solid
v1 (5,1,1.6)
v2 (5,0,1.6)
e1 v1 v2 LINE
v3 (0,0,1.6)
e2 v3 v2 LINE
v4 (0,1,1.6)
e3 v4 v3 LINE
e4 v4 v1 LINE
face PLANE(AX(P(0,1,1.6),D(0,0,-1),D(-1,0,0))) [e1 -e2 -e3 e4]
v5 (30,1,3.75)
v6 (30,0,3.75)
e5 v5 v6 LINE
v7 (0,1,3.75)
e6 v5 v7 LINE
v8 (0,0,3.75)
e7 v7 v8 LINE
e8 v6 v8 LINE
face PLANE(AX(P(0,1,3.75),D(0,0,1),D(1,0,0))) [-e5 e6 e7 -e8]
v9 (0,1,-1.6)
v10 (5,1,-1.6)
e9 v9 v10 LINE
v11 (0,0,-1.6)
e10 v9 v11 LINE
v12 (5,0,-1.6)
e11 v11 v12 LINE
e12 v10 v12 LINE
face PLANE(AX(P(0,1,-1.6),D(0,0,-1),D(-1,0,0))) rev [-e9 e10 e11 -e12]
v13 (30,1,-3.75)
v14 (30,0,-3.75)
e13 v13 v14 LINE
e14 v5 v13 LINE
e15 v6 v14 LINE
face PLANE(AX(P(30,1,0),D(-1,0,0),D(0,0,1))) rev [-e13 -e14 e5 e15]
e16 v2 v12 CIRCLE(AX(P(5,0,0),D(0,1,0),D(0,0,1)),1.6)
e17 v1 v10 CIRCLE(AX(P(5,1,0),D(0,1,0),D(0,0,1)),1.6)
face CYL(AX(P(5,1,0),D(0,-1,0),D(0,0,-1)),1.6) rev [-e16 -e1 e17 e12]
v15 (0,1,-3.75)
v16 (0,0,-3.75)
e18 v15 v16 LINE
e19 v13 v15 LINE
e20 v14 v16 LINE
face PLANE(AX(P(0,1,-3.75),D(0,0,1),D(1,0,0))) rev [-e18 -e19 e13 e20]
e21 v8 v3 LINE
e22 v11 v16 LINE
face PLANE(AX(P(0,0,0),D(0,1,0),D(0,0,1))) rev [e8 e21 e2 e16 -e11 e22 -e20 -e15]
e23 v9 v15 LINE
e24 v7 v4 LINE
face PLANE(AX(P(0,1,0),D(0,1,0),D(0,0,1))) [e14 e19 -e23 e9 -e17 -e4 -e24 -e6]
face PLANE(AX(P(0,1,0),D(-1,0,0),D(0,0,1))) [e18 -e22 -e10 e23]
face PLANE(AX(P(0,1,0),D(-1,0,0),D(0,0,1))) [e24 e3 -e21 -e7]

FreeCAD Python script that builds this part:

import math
import FreeCAD as App
import Part
import Sketcher
from FreeCAD import Vector

doc = App.newDocument("Part")
params = doc.addObject("Spreadsheet::Sheet", "Params")
for row, (alias, value) in enumerate([
    ("sketch1_radius", "1.6 mm"),
    ("sketch1_width", "5 mm"),
    ("sketch1_width2", "30 mm"),
    ("sketch1_height", "7.5 mm"),
    ("pad1_length", "1 mm"),
], start=1):
    params.set(f"A{row}", alias)
    params.set(f"B{row}", "=" + value)
    params.setAlias(f"B{row}", alias)

body = doc.addObject("PartDesign::Body", "Body")

# Sketch on XZ plane
sketch1 = body.newObject("Sketcher::SketchObject", "Sketch")
sketch1.AttachmentSupport = (doc.getObject("XZ_Plane"), [""])
sketch1.MapMode = "FlatFace"
sketch1.addGeometry(Part.LineSegment(Vector(0, -3.8, 0), Vector(0, -1.6, 0)), False)
sketch1.addGeometry(Part.LineSegment(Vector(0, -1.6, 0), Vector(5, -1.6, 0)), False)
sketch1.addGeometry(Part.ArcOfCircle(Part.Circle(Vector(5, 0, 0), Vector(0, 0, 1), 1.6), math.radians(-90), math.radians(90)), False)
sketch1.addGeometry(Part.LineSegment(Vector(5, 1.6, 0), Vector(0, 1.6, 0)), False)
sketch1.addGeometry(Part.LineSegment(Vector(0, 1.6, 0), Vector(0, 3.8, 0)), False)
sketch1.addGeometry(Part.LineSegment(Vector(0, 3.8, 0), Vector(30, 3.8, 0)), False)
sketch1.addGeometry(Part.LineSegment(Vector(30, 3.8, 0), Vector(30, -3.8, 0)), False)
sketch1.addGeometry(Part.LineSegment(Vector(30, -3.8, 0), Vector(0, -3.8, 0)), False)
sketch1.addConstraint(Sketcher.Constraint("Coincident", 0, 2, 1, 1))
sketch1.addConstraint(Sketcher.Constraint("Tangent", 1, 2, 2, 1))
sketch1.addConstraint(Sketcher.Constraint("Tangent", 2, 2, 3, 1))
sketch1.addConstraint(Sketcher.Constraint("Coincident", 3, 2, 4, 1))
sketch1.addConstraint(Sketcher.Constraint("Coincident", 4, 2, 5, 1))
sketch1.addConstraint(Sketcher.Constraint("Coincident", 5, 2, 6, 1))
sketch1.addConstraint(Sketcher.Constraint("Coincident", 6, 2, 7, 1))
sketch1.addConstraint(Sketcher.Constraint("Coincident", 7, 2, 0, 1))
sketch1.addConstraint(Sketcher.Constraint("Vertical", 0))
sketch1.addConstraint(Sketcher.Constraint("Horizontal", 1))
sketch1.addConstraint(Sketcher.Constraint("Horizontal", 3))
sketch1.addConstraint(Sketcher.Constraint("Vertical", 4))
sketch1.addConstraint(Sketcher.Constraint("Horizontal", 5))
sketch1.addConstraint(Sketcher.Constraint("Vertical", 6))
sketch1.addConstraint(Sketcher.Constraint("Horizontal", 7))
sketch1.addConstraint(Sketcher.Constraint("Symmetric", 0, 2, 3, 2, -1, 1))
sketch1.addConstraint(Sketcher.Constraint("Symmetric", 4, 2, 7, 2, -1))
sketch1.addConstraint(Sketcher.Constraint("Radius", 2, 1.6))
sketch1.addConstraint(Sketcher.Constraint("DistanceX", 1, 1, 1, 2, 5.0))
sketch1.addConstraint(Sketcher.Constraint("DistanceX", 5, 1, 5, 2, 30.0))
sketch1.addConstraint(Sketcher.Constraint("DistanceY", 6, 2, 6, 1, 7.5))
sketch1.setExpression("Constraints[17]", "Params.sketch1_radius")
sketch1.setExpression("Constraints[18]", "Params.sketch1_width")
sketch1.setExpression("Constraints[19]", "Params.sketch1_width2")
sketch1.setExpression("Constraints[20]", "Params.sketch1_height")
pad1 = body.newObject("PartDesign::Pad", "Pad")
pad1.Profile = sketch1
pad1.setExpression("Length", "Params.pad1_length")
pad1.Reversed = True

doc.recompute()
